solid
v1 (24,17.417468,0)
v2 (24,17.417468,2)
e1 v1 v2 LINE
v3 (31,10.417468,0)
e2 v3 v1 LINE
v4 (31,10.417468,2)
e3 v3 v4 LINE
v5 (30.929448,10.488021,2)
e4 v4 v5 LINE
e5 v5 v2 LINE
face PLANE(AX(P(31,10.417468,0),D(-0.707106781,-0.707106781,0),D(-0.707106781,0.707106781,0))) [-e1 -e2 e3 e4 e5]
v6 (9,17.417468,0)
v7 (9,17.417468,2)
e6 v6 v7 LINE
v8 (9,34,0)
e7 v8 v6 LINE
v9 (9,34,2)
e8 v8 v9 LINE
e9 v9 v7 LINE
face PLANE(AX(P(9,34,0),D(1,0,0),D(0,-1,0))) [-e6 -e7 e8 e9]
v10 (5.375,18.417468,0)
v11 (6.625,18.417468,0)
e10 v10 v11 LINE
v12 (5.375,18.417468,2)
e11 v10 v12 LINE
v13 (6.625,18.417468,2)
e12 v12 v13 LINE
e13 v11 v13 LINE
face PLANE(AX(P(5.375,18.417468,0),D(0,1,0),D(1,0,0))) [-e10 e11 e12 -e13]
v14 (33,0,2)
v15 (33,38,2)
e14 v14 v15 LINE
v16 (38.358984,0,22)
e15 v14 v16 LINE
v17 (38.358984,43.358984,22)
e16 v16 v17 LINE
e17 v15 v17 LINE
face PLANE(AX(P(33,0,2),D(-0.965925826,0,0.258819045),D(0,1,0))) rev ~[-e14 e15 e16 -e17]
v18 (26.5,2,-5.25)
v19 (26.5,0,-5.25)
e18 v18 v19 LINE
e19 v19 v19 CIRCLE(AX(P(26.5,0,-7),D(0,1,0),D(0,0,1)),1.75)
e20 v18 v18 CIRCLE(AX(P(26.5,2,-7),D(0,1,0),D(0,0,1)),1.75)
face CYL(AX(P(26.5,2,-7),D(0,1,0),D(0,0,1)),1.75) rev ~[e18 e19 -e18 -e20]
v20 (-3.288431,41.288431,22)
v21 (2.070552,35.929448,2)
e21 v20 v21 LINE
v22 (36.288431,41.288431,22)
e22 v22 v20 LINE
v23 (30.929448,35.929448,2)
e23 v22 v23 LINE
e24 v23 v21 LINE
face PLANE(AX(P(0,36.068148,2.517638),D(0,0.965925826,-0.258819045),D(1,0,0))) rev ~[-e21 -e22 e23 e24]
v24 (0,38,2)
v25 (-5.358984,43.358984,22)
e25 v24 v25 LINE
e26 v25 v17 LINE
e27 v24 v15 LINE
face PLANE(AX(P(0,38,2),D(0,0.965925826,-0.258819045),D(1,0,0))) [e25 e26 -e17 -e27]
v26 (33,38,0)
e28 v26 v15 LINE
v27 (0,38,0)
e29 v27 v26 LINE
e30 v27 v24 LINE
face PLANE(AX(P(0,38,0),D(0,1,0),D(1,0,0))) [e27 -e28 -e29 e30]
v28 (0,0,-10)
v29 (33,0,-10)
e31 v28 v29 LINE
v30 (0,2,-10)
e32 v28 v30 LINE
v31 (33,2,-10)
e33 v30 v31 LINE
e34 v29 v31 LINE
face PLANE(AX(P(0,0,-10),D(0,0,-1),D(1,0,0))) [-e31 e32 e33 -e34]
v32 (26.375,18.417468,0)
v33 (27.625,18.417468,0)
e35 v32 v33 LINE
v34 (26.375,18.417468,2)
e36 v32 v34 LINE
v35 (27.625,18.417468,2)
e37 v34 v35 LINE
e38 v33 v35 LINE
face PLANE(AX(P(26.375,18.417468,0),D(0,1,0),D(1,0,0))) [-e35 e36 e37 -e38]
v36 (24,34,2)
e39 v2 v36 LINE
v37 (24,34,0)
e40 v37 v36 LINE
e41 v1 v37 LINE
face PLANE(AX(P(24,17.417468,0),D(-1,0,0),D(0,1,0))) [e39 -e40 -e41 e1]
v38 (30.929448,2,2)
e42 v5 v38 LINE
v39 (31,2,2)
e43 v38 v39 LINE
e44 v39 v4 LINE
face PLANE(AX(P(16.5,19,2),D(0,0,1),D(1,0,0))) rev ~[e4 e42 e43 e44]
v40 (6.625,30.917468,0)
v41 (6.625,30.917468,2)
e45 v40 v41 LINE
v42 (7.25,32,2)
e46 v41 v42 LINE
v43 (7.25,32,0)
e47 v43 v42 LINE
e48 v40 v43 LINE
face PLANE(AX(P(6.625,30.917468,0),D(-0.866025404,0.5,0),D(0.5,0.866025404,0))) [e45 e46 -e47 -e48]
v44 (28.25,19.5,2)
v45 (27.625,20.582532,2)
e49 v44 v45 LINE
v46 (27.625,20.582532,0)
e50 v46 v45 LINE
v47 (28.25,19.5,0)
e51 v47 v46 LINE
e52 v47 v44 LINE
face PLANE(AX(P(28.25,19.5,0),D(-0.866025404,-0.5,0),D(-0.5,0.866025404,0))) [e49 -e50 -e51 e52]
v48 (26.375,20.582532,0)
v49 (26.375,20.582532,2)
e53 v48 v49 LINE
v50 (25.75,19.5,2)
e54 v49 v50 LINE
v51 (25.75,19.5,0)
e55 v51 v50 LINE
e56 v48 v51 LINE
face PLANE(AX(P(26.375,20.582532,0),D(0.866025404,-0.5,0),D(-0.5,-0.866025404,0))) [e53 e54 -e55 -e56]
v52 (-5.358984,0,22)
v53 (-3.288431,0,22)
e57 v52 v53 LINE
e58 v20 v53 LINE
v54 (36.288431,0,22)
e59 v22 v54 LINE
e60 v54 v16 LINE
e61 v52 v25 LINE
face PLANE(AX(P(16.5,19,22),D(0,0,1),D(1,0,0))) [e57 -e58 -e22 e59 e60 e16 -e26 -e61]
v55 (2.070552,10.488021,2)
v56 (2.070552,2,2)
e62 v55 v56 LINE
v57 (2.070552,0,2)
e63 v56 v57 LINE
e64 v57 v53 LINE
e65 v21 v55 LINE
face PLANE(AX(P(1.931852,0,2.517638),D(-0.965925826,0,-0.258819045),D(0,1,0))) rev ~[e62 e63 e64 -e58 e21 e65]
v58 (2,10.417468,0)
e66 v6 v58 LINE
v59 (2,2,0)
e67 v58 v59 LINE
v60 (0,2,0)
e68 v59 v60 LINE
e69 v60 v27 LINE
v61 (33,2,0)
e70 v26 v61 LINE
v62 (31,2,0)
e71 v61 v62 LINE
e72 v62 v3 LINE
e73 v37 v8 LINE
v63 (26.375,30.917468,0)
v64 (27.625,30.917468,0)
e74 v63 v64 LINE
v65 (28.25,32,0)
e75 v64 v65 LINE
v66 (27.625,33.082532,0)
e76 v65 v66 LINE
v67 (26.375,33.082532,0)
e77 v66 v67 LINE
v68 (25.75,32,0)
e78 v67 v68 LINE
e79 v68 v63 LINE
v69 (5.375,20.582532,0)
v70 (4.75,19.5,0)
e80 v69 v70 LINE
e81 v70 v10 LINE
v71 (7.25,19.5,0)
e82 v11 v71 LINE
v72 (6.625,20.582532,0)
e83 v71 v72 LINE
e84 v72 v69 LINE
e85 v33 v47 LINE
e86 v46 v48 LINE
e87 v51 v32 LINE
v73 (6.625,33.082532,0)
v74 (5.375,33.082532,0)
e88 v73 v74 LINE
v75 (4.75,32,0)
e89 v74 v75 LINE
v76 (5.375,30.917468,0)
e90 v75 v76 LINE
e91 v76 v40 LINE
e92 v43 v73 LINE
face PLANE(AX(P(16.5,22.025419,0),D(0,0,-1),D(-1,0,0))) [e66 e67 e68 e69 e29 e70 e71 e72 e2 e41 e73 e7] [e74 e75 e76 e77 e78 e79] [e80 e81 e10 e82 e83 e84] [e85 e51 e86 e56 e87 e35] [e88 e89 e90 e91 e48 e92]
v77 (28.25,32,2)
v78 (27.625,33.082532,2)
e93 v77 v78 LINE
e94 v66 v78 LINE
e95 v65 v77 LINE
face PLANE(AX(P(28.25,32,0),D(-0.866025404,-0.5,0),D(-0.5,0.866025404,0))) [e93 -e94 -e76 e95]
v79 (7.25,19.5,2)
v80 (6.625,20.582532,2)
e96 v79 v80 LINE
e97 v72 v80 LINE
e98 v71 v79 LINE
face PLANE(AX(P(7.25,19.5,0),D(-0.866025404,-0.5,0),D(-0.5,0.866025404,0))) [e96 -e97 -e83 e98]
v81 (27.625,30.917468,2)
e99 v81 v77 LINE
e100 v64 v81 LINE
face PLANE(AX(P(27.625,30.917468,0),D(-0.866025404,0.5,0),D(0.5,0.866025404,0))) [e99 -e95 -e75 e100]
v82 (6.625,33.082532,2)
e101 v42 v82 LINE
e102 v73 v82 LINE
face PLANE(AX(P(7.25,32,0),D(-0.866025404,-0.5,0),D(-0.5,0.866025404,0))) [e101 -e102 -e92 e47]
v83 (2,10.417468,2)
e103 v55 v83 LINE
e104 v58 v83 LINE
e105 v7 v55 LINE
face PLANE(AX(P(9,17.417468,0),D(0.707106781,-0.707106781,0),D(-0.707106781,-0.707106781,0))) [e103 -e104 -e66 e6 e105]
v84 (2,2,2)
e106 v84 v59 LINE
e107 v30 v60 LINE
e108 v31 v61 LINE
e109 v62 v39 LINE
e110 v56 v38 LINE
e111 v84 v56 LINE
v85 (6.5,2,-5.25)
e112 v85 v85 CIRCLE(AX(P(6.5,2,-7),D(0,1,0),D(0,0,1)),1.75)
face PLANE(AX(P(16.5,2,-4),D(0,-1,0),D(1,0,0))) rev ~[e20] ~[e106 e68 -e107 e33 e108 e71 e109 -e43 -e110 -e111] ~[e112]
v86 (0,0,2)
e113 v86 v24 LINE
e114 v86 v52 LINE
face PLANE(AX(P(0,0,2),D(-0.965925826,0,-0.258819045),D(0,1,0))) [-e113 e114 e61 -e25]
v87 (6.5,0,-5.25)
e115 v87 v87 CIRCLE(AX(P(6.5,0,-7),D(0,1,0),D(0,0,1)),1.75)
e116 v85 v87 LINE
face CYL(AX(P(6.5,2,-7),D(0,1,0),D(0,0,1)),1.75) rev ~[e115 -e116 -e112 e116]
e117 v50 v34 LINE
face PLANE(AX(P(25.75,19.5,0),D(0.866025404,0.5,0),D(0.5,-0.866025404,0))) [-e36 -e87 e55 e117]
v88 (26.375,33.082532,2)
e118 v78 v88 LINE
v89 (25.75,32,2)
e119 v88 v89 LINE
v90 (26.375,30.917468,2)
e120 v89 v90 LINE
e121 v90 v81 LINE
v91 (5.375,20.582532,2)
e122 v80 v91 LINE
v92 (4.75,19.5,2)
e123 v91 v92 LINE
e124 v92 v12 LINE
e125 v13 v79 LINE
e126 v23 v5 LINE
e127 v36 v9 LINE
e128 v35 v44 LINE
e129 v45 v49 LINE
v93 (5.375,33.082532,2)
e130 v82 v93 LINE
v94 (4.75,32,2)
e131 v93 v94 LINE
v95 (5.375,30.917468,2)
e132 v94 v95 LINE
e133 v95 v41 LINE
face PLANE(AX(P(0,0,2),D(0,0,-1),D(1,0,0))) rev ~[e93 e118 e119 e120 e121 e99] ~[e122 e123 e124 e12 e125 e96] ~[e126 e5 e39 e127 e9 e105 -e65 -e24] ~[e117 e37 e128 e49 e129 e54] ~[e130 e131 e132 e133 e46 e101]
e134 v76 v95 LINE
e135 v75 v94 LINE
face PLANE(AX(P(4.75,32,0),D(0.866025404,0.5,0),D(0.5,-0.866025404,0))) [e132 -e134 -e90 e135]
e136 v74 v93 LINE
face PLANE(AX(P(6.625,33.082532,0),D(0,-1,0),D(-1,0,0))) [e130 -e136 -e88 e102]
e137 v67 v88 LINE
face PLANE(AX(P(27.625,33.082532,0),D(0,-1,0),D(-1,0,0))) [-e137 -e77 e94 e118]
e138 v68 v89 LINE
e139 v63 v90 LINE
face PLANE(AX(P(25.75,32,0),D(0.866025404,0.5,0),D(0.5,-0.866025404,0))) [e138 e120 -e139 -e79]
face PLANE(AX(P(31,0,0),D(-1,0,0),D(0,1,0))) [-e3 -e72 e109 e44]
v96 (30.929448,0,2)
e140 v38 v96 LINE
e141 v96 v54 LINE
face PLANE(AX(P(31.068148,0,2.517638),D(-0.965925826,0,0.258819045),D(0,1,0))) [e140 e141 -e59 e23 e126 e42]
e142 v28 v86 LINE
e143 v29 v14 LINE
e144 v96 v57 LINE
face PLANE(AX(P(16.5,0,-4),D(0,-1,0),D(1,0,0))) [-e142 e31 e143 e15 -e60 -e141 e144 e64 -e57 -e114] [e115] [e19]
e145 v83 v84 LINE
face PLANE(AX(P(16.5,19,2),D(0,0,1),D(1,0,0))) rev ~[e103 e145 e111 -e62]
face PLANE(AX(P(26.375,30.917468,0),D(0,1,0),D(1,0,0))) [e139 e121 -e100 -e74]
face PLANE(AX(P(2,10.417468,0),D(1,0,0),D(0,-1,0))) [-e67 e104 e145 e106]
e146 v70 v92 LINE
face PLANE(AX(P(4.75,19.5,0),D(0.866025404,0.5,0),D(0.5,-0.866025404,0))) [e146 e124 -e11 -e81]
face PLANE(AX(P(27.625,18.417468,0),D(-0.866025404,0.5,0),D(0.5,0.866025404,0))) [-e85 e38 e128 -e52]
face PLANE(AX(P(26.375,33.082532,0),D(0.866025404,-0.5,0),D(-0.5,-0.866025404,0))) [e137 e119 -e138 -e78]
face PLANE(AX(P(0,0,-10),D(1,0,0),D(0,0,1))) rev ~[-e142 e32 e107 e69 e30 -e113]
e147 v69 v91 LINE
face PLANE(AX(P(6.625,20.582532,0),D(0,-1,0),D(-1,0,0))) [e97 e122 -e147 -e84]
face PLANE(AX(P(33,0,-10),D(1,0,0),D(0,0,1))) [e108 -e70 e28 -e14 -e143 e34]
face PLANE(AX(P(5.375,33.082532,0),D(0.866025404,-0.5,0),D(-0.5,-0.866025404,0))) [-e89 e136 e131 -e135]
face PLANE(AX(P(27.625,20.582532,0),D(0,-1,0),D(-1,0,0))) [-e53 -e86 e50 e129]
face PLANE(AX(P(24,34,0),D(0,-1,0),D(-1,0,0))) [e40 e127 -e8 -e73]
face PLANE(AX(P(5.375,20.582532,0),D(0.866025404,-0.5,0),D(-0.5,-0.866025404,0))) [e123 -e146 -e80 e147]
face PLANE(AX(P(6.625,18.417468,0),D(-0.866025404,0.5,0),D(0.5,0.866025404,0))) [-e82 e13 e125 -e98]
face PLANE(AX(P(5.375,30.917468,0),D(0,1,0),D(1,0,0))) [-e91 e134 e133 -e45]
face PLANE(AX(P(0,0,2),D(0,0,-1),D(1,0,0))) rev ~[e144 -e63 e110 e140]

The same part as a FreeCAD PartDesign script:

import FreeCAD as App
import Part
import Sketcher
from FreeCAD import Vector
Q = App.Units.Quantity


def faces_at(feature, points):
    """Names of the faces that lie closest to the given points."""
    faces = feature.Shape.Faces
    near = lambda p: min(range(len(faces)), key=lambda i: faces[i].distToShape(Part.Vertex(*p))[0])
    return sorted({f"Face{near(p) + 1}" for p in points})


def add_polygon(sketch, points):
    """Adds a closed chain of lines whose ends are joined by coincident constraints."""
    first, n = sketch.GeometryCount, len(points)
    for a, b in zip(points, points[1:] + points[:1]):
        sketch.addGeometry(Part.LineSegment(App.Vector(*a, 0), App.Vector(*b, 0)), False)
    for i in range(n):
        sketch.addConstraint(Sketcher.Constraint("Coincident", first + i, 2, first + (i + 1) % n, 1))

doc = App.newDocument("Part")
body = doc.addObject("PartDesign::Body", "Body")

sketch1 = doc.addObject("Sketcher::SketchObject", "Sketch")
body.addObject(sketch1)
sketch1.AttachmentSupport = (doc.XY_Plane, [""])
sketch1.MapMode = "FlatFace"
add_polygon(sketch1, [(0, 38), (0, 0), (2, 0), (2, 10.417468), (9, 17.417468), (9, 34), (24, 34), (24, 17.417468), (31, 10.417468), (31, 0), (33, 0), (33, 38)])
add_polygon(sketch1, [(25.75, 19.5), (26.375, 20.582532), (27.625, 20.582532), (28.25, 19.5), (27.625, 18.417468), (26.375, 18.417468)])
add_polygon(sketch1, [(7.25, 19.5), (6.625, 18.417468), (5.375, 18.417468), (4.75, 19.5), (5.375, 20.582532), (6.625, 20.582532)])
add_polygon(sketch1, [(28.25, 32), (27.625, 30.917468), (26.375, 30.917468), (25.75, 32), (26.375, 33.082532), (27.625, 33.082532)])
add_polygon(sketch1, [(7.25, 32), (6.625, 30.917468), (5.375, 30.917468), (4.75, 32), (5.375, 33.082532), (6.625, 33.082532)])
sketch1.addConstraint(Sketcher.Constraint("Vertical", 0))
sketch1.addConstraint(Sketcher.Constraint("Horizontal", 1))
sketch1.addConstraint(Sketcher.Constraint("Vertical", 2))
sketch1.addConstraint(Sketcher.Constraint("Vertical", 4))
sketch1.addConstraint(Sketcher.Constraint("Horizontal", 5))
sketch1.addConstraint(Sketcher.Constraint("Vertical", 6))
sketch1.addConstraint(Sketcher.Constraint("Vertical", 8))
sketch1.addConstraint(Sketcher.Constraint("Horizontal", 9))
sketch1.addConstraint(Sketcher.Constraint("Vertical", 10))
sketch1.addConstraint(Sketcher.Constraint("Horizontal", 11))
sketch1.addConstraint(Sketcher.Constraint("Horizontal", 13))
sketch1.addConstraint(Sketcher.Constraint("Horizontal", 16))
sketch1.addConstraint(Sketcher.Constraint("Horizontal", 19))
sketch1.addConstraint(Sketcher.Constraint("Horizontal", 22))
sketch1.addConstraint(Sketcher.Constraint("Horizontal", 25))
sketch1.addConstraint(Sketcher.Constraint("Horizontal", 28))
sketch1.addConstraint(Sketcher.Constraint("Horizontal", 31))
sketch1.addConstraint(Sketcher.Constraint("Horizontal", 34))
sketch1.addConstraint(Sketcher.Constraint("Coincident", 0, 2, -1, 1))
sketch1.addConstraint(Sketcher.Constraint("PointOnObject", 8, 2, -1))
sketch1.addConstraint(Sketcher.Constraint("Perpendicular", 3, 7))
sketch1.addConstraint(Sketcher.Constraint("Parallel", 12, 15))
sketch1.addConstraint(Sketcher.Constraint("Parallel", 14, 17))
sketch1.addConstraint(Sketcher.Constraint("Parallel", 15, 18))
sketch1.addConstraint(Sketcher.Constraint("Parallel", 17, 20))
sketch1.addConstraint(Sketcher.Constraint("Parallel", 18, 21))
sketch1.addConstraint(Sketcher.Constraint("Parallel", 20, 23))
sketch1.addConstraint(Sketcher.Constraint("Parallel", 21, 24))
sketch1.addConstraint(Sketcher.Constraint("Parallel", 23, 26))
sketch1.addConstraint(Sketcher.Constraint("Parallel", 24, 27))
sketch1.addConstraint(Sketcher.Constraint("Parallel", 26, 29))
sketch1.addConstraint(Sketcher.Constraint("Parallel", 27, 30))
sketch1.addConstraint(Sketcher.Constraint("Parallel", 29, 32))
sketch1.addConstraint(Sketcher.Constraint("Parallel", 30, 33))
sketch1.addConstraint(Sketcher.Constraint("Parallel", 32, 35))
sketch1.addConstraint(Sketcher.Constraint("Horizontal", 3, 2, 6, 2))
sketch1.addConstraint(Sketcher.Constraint("Horizontal", 2, 2, 7, 2))
sketch1.addConstraint(Sketcher.Constraint("Horizontal", 14, 2, 17, 2))
sketch1.addConstraint(Sketcher.Constraint("Horizontal", 16, 2, 18, 2))
sketch1.addConstraint(Sketcher.Constraint("Horizontal", 17, 2, 20, 2))
sketch1.addConstraint(Sketcher.Constraint("Horizontal", 13, 2, 21, 2))
sketch1.addConstraint(Sketcher.Constraint("Horizontal", 20, 2, 23, 2))
sketch1.addConstraint(Sketcher.Constraint("Horizontal", 26, 2, 29, 2))
sketch1.addConstraint(Sketcher.Constraint("Horizontal", 25, 2, 30, 2))
sketch1.addConstraint(Sketcher.Constraint("Horizontal", 29, 2, 32, 2))
sketch1.addConstraint(Sketcher.Constraint("Horizontal", 28, 2, 33, 2))
sketch1.addConstraint(Sketcher.Constraint("Horizontal", 32, 2, 35, 2))
sketch1.addConstraint(Sketcher.Constraint("Vertical", 13, 2, 15, 2))
sketch1.addConstraint(Sketcher.Constraint("Vertical", 12, 2, 16, 2))
sketch1.addConstraint(Sketcher.Constraint("Vertical", 15, 2, 24, 2))
sketch1.addConstraint(Sketcher.Constraint("Vertical", 16, 2, 25, 2))
sketch1.addConstraint(Sketcher.Constraint("Vertical", 17, 2, 26, 2))
sketch1.addConstraint(Sketcher.Constraint("Vertical", 25, 2, 27, 2))
sketch1.addConstraint(Sketcher.Constraint("Vertical", 22, 2, 30, 2))
sketch1.addConstraint(Sketcher.Constraint("Vertical", 21, 2, 31, 2))
sketch1.addConstraint(Sketcher.Constraint("Equal", 1, 9))
sketch1.addConstraint(Sketcher.Constraint("Equal", 16, 19))
sketch1.addConstraint(Sketcher.Constraint("Equal", 3, 7))
sketch1.addConstraint(Sketcher.Constraint("DistanceX", 1, 1, 1, 2, 2.0))
sketch1.addConstraint(Sketcher.Constraint("DistanceX", 5, 1, 5, 2, 15.0))
sketch1.addConstraint(Sketcher.Constraint("DistanceX", 11, 2, 11, 1, 33.0))
sketch1.addConstraint(Sketcher.Constraint("DistanceY", 0, 2, 0, 1, 38.0))
sketch1.addConstraint(Sketcher.Constraint("Angle", 12, Q("60 deg")))
sketch1.addConstraint(Sketcher.Constraint("DistanceY", -1, 1, 4, 2, 34.0))
sketch1.addConstraint(Sketcher.Constraint("DistanceY", -1, 1, 26, 2, 32.0))
sketch1.addConstraint(Sketcher.Constraint("DistanceY", 6, 2, 15, 2, 1.0))
sketch1.addConstraint(Sketcher.Constraint("DistanceX", 13, 1, 13, 2, 1.25))
sketch1.addConstraint(Sketcher.Constraint("DistanceY", -1, 1, 14, 2, 19.5))
sketch1.addConstraint(Sketcher.Constraint("DistanceX", 17, 2, 14, 2, 2.5))
sketch1.addConstraint(Sketcher.Constraint("DistanceX", -1, 1, 14, 2, 28.25))
sketch1.addConstraint(Sketcher.Constraint("DistanceX", -1, 1, 20, 2, 4.75))
pad1 = doc.addObject("PartDesign::Pad", "Pad")
body.addObject(pad1)
pad1.Profile = sketch1
pad1.Length = 2

sketch2 = doc.addObject("Sketcher::SketchObject", "Sketch001")
body.addObject(sketch2)
sketch2.AttachmentSupport = (doc.XZ_Plane, [""])
sketch2.MapMode = "FlatFace"
add_polygon(sketch2, [(0, 2), (0, -10), (33, -10), (33, 2)])
sketch2.addConstraint(Sketcher.Constraint("Vertical", 0))
sketch2.addConstraint(Sketcher.Constraint("Horizontal", 1))
sketch2.addConstraint(Sketcher.Constraint("Vertical", 2))
sketch2.addConstraint(Sketcher.Constraint("Horizontal", 3))
sketch2.addConstraint(Sketcher.Constraint("PointOnObject", 0, 2, -2))
sketch2.addConstraint(Sketcher.Constraint("DistanceX", 1, 1, 1, 2, 33.0))
sketch2.addConstraint(Sketcher.Constraint("DistanceY", 0, 2, 0, 1, 12.0))
sketch2.addConstraint(Sketcher.Constraint("DistanceY", 0, 2, -1, 1, 10.0))
pad2 = doc.addObject("PartDesign::Pad", "Pad001")
body.addObject(pad2)
pad2.Profile = sketch2
pad2.Length = 2
pad2.Reversed = True

sketch3 = doc.addObject("Sketcher::SketchObject", "Sketch002")
body.addObject(sketch3)
sketch3.AttachmentSupport = (doc.XZ_Plane, [""])
sketch3.MapMode = "FlatFace"
sketch3.AttachmentOffset = App.Placement(Vector(0, 0, -2), App.Rotation())
sketch3.addGeometry(Part.Circle(Vector(26.5, -7, 0), Vector(0, 0, 1), 1.75), False)
sketch3.addGeometry(Part.Circle(Vector(6.5, -7, 0), Vector(0, 0, 1), 1.75), False)
sketch3.addConstraint(Sketcher.Constraint("Equal", 0, 1))
sketch3.addConstraint(Sketcher.Constraint("Horizontal", 0, 3, 1, 3))
sketch3.addConstraint(Sketcher.Constraint("Diameter", 0, 3.5))
sketch3.addConstraint(Sketcher.Constraint("DistanceY", 0, 3, -1, 1, 7.0))
sketch3.addConstraint(Sketcher.Constraint("DistanceX", 1, 3, 0, 3, 20.0))
sketch3.addConstraint(Sketcher.Constraint("DistanceX", -1, 1, 0, 3, 26.5))
pocket1 = doc.addObject("PartDesign::Pocket", "Pocket")
body.addObject(pocket1)
pocket1.Profile = sketch3
pocket1.Type = "ThroughAll"
pocket1.Reversed = True
body2 = doc.addObject("PartDesign::Body", "Body001")

sketch4 = doc.addObject("Sketcher::SketchObject", "Sketch003")
body2.addObject(sketch4)
sketch4.AttachmentSupport = (doc.getObject("XY_Plane001"), [""])
sketch4.MapMode = "FlatFace"
sketch4.AttachmentOffset = App.Placement(Vector(0, 0, 2), App.Rotation())
add_polygon(sketch4, [(0, 38), (0, 0), (33, 0), (33, 38)])
sketch4.addConstraint(Sketcher.Constraint("Vertical", 0))
sketch4.addConstraint(Sketcher.Constraint("Horizontal", 1))
sketch4.addConstraint(Sketcher.Constraint("Vertical", 2))
sketch4.addConstraint(Sketcher.Constraint("Horizontal", 3))
sketch4.addConstraint(Sketcher.Constraint("Coincident", 0, 2, -1, 1))
sketch4.addConstraint(Sketcher.Constraint("DistanceX", 1, 1, 1, 2, 33.0))
sketch4.addConstraint(Sketcher.Constraint("DistanceY", 0, 2, 0, 1, 38.0))
pad3 = doc.addObject("PartDesign::Pad", "Pad002")
body2.addObject(pad3)
pad3.Profile = sketch4
pad3.Length = 20
doc.recompute()

datumplane = doc.addObject("PartDesign::Plane", "DatumPlane")
body2.addObject(datumplane)
datumplane.AttachmentSupport = (doc.getObject("XY_Plane001"), [""])
datumplane.MapMode = "FlatFace"
datumplane.AttachmentOffset = App.Placement(Vector(0, 0, 2), App.Rotation())
draft = doc.addObject("PartDesign::Draft", "Draft")
body2.addObject(draft)
draft.Base = (pad3, faces_at(pad3, [
    (33, 19, 12),
    (16.5, 38, 12),
    (0, 19, 12),
    (16.5, 0, 12),
]))
draft.NeutralPlane = (datumplane, [""])
draft.Angle = 15
draft.Reversed = True
doc.recompute()

thickness = doc.addObject("PartDesign::Thickness", "Thickness")
body2.addObject(thickness)
thickness.Base = (draft, faces_at(draft, [(16.5, 19, 22), (16.5, 19, 2), (16.5, -2.679, 12)]))
thickness.Value = 2
thickness.Reversed = True
thickness.Join = "Intersection"

sketch5 = doc.addObject("Sketcher::SketchObject", "Sketch004")
body2.addObject(sketch5)
sketch5.AttachmentSupport = (doc.getObject("XZ_Plane001"), [""])
sketch5.MapMode = "FlatFace"
add_polygon(sketch5, [(-5.358984, 22), (-5.358984, 2), (38.358984, 2), (38.358984, 22)])
sketch5.addConstraint(Sketcher.Constraint("Vertical", 0))
sketch5.addConstraint(Sketcher.Constraint("Horizontal", 1))
sketch5.addConstraint(Sketcher.Constraint("Vertical", 2))
sketch5.addConstraint(Sketcher.Constraint("Horizontal", 3))
sketch5.addConstraint(Sketcher.Constraint("DistanceY", 0, 2, 0, 1, 20.0))
sketch5.addConstraint(Sketcher.Constraint("DistanceY", -1, 1, 0, 2, 2.0))
sketch5.addConstraint(Sketcher.Constraint("DistanceX", 1, 1, 1, 2, 43.717968))
sketch5.addConstraint(Sketcher.Constraint("DistanceX", 0, 2, -1, 1, 5.358984))
pocket2 = doc.addObject("PartDesign::Pocket", "Pocket001")
body2.addObject(pocket2)
pocket2.Profile = sketch5
pocket2.Type = "ThroughAll"
pocket2.Reversed = True
doc.recompute()

boolean = doc.addObject("PartDesign::Boolean", "Boolean")
body2.addObject(boolean)
boolean.Type = "Fuse"
boolean.addObjects([body])

doc.recompute()
